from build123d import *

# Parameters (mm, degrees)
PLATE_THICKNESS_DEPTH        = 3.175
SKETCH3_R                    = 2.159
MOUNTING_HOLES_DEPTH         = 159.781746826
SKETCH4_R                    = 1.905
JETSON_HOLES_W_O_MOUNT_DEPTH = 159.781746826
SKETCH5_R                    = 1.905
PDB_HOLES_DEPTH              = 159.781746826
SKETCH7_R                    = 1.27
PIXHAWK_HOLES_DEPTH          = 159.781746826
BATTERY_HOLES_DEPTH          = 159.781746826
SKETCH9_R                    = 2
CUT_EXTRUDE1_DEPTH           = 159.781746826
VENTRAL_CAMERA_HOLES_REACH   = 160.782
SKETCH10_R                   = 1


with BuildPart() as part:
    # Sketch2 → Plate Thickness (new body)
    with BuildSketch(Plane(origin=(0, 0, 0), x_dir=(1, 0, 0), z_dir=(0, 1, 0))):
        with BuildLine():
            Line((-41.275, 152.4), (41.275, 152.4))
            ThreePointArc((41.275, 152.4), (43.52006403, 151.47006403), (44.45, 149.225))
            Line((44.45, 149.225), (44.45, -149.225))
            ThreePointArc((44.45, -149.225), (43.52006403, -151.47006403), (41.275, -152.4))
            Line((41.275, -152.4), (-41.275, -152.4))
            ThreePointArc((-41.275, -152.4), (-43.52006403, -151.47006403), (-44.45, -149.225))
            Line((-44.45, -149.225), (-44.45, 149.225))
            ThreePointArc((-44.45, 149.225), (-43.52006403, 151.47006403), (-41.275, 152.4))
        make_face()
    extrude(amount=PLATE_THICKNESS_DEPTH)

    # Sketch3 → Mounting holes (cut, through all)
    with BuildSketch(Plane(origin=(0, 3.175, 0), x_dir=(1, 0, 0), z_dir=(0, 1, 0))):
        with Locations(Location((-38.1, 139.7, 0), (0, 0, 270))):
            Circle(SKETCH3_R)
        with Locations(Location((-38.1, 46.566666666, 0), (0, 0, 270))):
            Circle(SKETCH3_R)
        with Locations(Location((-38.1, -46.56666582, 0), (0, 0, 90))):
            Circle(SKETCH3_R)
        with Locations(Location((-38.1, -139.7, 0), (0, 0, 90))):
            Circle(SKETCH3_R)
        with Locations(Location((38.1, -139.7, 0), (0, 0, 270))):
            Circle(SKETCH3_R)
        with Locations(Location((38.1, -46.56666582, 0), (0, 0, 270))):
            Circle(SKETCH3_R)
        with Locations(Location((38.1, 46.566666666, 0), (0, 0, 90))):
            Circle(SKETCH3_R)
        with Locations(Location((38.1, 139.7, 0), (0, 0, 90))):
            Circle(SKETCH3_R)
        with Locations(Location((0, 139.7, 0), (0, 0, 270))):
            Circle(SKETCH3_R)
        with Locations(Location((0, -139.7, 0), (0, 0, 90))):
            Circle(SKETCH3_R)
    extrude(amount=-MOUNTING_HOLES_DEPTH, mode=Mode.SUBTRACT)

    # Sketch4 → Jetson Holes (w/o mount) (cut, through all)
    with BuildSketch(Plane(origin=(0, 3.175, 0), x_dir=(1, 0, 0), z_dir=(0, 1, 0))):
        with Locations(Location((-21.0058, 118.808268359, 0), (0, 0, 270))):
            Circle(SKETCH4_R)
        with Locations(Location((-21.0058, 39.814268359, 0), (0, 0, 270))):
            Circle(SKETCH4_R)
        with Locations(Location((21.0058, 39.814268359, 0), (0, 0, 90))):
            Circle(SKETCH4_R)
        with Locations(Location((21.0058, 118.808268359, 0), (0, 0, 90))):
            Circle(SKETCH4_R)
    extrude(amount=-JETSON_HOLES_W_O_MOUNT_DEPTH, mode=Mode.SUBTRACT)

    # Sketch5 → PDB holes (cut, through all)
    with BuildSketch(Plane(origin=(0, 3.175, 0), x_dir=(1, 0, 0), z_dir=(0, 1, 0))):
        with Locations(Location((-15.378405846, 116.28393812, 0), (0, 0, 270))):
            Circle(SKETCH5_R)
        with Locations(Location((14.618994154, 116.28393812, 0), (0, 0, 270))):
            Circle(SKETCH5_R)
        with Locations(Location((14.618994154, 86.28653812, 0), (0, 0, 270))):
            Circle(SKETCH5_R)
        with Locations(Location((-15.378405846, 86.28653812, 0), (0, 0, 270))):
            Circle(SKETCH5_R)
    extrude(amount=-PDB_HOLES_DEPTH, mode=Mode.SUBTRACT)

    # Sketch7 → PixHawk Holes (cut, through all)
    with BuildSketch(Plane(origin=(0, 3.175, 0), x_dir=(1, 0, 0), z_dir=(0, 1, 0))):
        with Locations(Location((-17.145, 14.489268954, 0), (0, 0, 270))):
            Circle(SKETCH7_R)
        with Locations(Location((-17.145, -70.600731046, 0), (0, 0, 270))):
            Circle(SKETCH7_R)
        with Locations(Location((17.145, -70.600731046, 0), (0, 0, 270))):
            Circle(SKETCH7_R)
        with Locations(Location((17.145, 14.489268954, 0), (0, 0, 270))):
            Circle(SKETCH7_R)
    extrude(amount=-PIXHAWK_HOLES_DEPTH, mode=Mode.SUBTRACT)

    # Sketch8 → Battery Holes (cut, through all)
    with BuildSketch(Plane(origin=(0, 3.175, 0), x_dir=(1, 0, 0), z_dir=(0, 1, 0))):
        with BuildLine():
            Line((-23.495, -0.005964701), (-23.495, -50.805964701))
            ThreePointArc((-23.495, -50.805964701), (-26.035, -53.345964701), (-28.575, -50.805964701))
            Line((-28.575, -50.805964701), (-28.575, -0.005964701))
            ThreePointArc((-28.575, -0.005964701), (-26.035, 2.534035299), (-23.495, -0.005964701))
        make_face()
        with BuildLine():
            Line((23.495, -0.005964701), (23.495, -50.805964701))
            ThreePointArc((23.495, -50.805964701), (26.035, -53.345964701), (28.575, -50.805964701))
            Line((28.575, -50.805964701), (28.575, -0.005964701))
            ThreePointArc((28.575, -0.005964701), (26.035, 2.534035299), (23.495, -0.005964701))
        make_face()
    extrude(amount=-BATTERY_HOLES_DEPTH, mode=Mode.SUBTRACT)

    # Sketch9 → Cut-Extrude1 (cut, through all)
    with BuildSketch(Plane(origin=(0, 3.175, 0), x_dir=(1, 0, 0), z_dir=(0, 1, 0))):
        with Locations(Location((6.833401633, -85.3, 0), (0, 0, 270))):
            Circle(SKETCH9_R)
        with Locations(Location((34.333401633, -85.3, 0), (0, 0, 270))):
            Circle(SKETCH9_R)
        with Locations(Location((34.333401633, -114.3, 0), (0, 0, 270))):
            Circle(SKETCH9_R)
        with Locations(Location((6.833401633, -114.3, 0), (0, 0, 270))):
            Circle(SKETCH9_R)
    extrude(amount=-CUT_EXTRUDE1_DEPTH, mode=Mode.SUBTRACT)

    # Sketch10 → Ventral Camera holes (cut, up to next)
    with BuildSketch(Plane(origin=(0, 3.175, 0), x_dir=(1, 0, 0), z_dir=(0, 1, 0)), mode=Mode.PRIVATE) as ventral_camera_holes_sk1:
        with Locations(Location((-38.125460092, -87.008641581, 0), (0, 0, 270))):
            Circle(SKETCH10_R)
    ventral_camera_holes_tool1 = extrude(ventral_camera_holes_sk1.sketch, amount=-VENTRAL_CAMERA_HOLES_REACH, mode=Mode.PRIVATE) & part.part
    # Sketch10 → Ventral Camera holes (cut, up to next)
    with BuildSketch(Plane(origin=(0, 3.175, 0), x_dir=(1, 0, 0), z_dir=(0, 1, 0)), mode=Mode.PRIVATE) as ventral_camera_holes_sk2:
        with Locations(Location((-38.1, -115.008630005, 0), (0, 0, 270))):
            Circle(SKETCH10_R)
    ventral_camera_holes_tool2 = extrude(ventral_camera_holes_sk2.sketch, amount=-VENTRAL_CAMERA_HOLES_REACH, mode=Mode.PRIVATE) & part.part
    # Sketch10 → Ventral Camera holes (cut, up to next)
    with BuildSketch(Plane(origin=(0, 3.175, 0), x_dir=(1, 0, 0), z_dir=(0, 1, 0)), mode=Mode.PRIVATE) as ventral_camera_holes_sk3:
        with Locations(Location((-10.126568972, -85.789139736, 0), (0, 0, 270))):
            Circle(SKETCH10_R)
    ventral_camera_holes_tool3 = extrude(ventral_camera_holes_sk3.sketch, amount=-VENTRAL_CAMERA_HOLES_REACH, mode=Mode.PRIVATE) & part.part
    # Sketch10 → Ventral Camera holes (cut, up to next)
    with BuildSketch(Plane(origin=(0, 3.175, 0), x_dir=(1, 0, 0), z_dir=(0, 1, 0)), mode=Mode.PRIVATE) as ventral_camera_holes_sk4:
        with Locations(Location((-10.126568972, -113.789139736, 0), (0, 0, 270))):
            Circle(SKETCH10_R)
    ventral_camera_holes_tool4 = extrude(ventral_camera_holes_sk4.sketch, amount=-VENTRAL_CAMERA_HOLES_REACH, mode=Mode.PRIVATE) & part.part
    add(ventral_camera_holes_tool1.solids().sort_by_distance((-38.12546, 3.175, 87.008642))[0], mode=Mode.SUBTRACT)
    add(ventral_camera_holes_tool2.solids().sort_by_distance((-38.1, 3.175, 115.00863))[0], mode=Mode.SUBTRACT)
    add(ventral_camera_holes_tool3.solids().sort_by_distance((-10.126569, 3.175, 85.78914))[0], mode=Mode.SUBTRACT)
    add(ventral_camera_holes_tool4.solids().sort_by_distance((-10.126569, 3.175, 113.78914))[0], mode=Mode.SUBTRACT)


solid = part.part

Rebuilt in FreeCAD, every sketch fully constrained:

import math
import FreeCAD as App
import Part
import Sketcher

V = App.Vector
Q = App.Units.Quantity

doc = App.newDocument("Part")
body = doc.addObject("PartDesign::Body", "Body")

# Sketch on XZ plane
sketch1 = body.newObject("Sketcher::SketchObject", "Sketch")
sketch1.AttachmentSupport = (doc.getObject("XZ_Plane"), [""])
sketch1.MapMode = "FlatFace"
sketch1.addGeometry([
    Part.LineSegment(V(41.3, -152.4, 0), V(-41.3, -152.4, 0)),  # 0
    Part.ArcOfCircle(Part.Circle(V(-41.3, -149.2, 0), V(0, 0, 1), 3.2), math.radians(-180), math.radians(-90)),  # 1
    Part.LineSegment(V(-44.5, -149.2, 0), V(-44.5, 149.2, 0)),  # 2
    Part.ArcOfCircle(Part.Circle(V(-41.3, 149.2, 0), V(0, 0, 1), 3.2), math.radians(90), math.radians(180)),  # 3
    Part.LineSegment(V(-41.3, 152.4, 0), V(41.3, 152.4, 0)),  # 4
    Part.ArcOfCircle(Part.Circle(V(41.3, 149.2, 0), V(0, 0, 1), 3.2), math.radians(0), math.radians(90)),  # 5
    Part.LineSegment(V(44.5, 149.2, 0), V(44.5, -149.2, 0)),  # 6
    Part.ArcOfCircle(Part.Circle(V(41.3, -149.2, 0), V(0, 0, 1), 3.2), math.radians(-90), math.radians(0)),  # 7
], False)
sketch1.addConstraint([
    Sketcher.Constraint("Tangent", 0, 2, 1, 2),
    Sketcher.Constraint("Tangent", 1, 1, 2, 1),
    Sketcher.Constraint("Tangent", 2, 2, 3, 2),
    Sketcher.Constraint("Tangent", 3, 1, 4, 1),
    Sketcher.Constraint("Tangent", 4, 2, 5, 2),
    Sketcher.Constraint("Tangent", 5, 1, 6, 1),
    Sketcher.Constraint("Tangent", 6, 2, 7, 2),
    Sketcher.Constraint("Tangent", 7, 1, 0, 1),
    Sketcher.Constraint("Horizontal", 0),
    Sketcher.Constraint("Vertical", 2),
    Sketcher.Constraint("Horizontal", 4),
    Sketcher.Constraint("Vertical", 6),
    Sketcher.Constraint("Equal", 1, 3),
    Sketcher.Constraint("Equal", 3, 5),
    Sketcher.Constraint("Equal", 5, 7),
    Sketcher.Constraint("Symmetric", 1, 3, 5, 3, -1, 1),
    Sketcher.Constraint("DistanceY", 0, 2, -1, 1, Q("6 in")),
    Sketcher.Constraint("Radius", 1, Q("0.125 in")),
    Sketcher.Constraint("DistanceX", 0, 2, 0, 1, Q("3.25 in")),
])
pad1 = body.newObject("PartDesign::Pad", "Pad")
pad1.Profile = sketch1
pad1.Length = Q("0.125 in")
pad1.Reversed = True

# Sketch on XZ plane
sketch2 = body.newObject("Sketcher::SketchObject", "Sketch001")
sketch2.AttachmentSupport = (doc.getObject("XZ_Plane"), [""])
sketch2.MapMode = "FlatFace"
sketch2.AttachmentOffset = App.Placement(V(0, 0, -0.125 * 25.4), App.Rotation())
sketch2.addGeometry([
    Part.Circle(V(-38.1, -139.7, 0), V(0, 0, 1), 2.2),  # 0
    Part.Circle(V(-38.1, -46.6, 0), V(0, 0, 1), 2.2),  # 1
    Part.Circle(V(-38.1, 46.6, 0), V(0, 0, 1), 2.2),  # 2
    Part.Circle(V(-38.1, 139.7, 0), V(0, 0, 1), 2.2),  # 3
    Part.Circle(V(38.1, 139.7, 0), V(0, 0, 1), 2.2),  # 4
    Part.Circle(V(38.1, 46.6, 0), V(0, 0, 1), 2.2),  # 5
    Part.Circle(V(38.1, -46.6, 0), V(0, 0, 1), 2.2),  # 6
    Part.Circle(V(38.1, -139.7, 0), V(0, 0, 1), 2.2),  # 7
    Part.Circle(V(0, -139.7, 0), V(0, 0, 1), 2.2),  # 8
    Part.Circle(V(0, 139.7, 0), V(0, 0, 1), 2.2),  # 9
], False)
sketch2.addConstraint([
    Sketcher.Constraint("Equal", 0, 1),
    Sketcher.Constraint("Equal", 1, 2),
    Sketcher.Constraint("Equal", 2, 3),
    Sketcher.Constraint("Equal", 3, 4),
    Sketcher.Constraint("Equal", 4, 5),
    Sketcher.Constraint("Equal", 5, 6),
    Sketcher.Constraint("Equal", 6, 7),
    Sketcher.Constraint("Equal", 7, 8),
    Sketcher.Constraint("Equal", 8, 9),
    Sketcher.Constraint("Symmetric", 0, 3, 4, 3, -1, 1),
    Sketcher.Constraint("Symmetric", 1, 3, 5, 3, -1, 1),
    Sketcher.Constraint("Symmetric", 2, 3, 6, 3, -1, 1),
    Sketcher.Constraint("Symmetric", 3, 3, 7, 3, -1, 1),
    Sketcher.Constraint("Symmetric", 8, 3, 9, 3, -1, 1),
    Sketcher.Constraint("Symmetric", 3, 3, 4, 3, -2),
    Sketcher.Constraint("Symmetric", 2, 3, 5, 3, -2),
    Sketcher.Constraint("PointOnObject", 8, 3, -2),
    Sketcher.Constraint("Horizontal", 7, 3, 8, 3),
    Sketcher.Constraint("Vertical", 0, 3, 1, 3),
    Sketcher.Constraint("Diameter", 0, Q("0.17 in")),
    Sketcher.Constraint("DistanceY", 0, 3, 3, 3, Q("11 in")),
    Sketcher.Constraint("DistanceX", 3, 3, 4, 3, Q("3 in")),
    Sketcher.Constraint("DistanceY", 1, 3, -1, 1, 46.566667),
])
pocket1 = body.newObject("PartDesign::Pocket", "Pocket")
pocket1.Profile = sketch2
pocket1.Type = "ThroughAll"
pocket1.Reversed = True

# Sketch on XZ plane
sketch3 = body.newObject("Sketcher::SketchObject", "Sketch002")
sketch3.AttachmentSupport = (doc.getObject("XZ_Plane"), [""])
sketch3.MapMode = "FlatFace"
sketch3.AttachmentOffset = App.Placement(V(0, 0, -0.125 * 25.4), App.Rotation())
sketch3.addGeometry([
    Part.Circle(V(-21, -118.8, 0), V(0, 0, 1), 1.9),
    Part.Circle(V(-21, -39.8, 0), V(0, 0, 1), 1.9),
    Part.Circle(V(21, -39.8, 0), V(0, 0, 1), 1.9),
    Part.Circle(V(21, -118.8, 0), V(0, 0, 1), 1.9),
], False)
sketch3.addConstraint([
    Sketcher.Constraint("Equal", 0, 1),
    Sketcher.Constraint("Equal", 1, 2),
    Sketcher.Constraint("Equal", 2, 3),
    Sketcher.Constraint("Symmetric", 1, 3, 2, 3, -2),
    Sketcher.Constraint("Symmetric", 0, 3, 3, 3, -2),
    Sketcher.Constraint("Vertical", 0, 3, 1, 3),
    Sketcher.Constraint("Diameter", 0, Q("0.15 in")),
    Sketcher.Constraint("DistanceY", 0, 3, 1, 3, Q("3.11 in")),
    Sketcher.Constraint("DistanceX", 0, 3, -1, 1, Q("0.827 in")),
    Sketcher.Constraint("DistanceY", 0, 3, -1, 1, 118.808268),
])
pocket2 = body.newObject("PartDesign::Pocket", "Pocket001")
pocket2.Profile = sketch3
pocket2.Type = "ThroughAll"
pocket2.Reversed = True

# Sketch on XZ plane
sketch4 = body.newObject("Sketcher::SketchObject", "Sketch003")
sketch4.AttachmentSupport = (doc.getObject("XZ_Plane"), [""])
sketch4.MapMode = "FlatFace"
sketch4.AttachmentOffset = App.Placement(V(0, 0, -0.125 * 25.4), App.Rotation())
sketch4.addGeometry([
    Part.Circle(V(-15.4, -116.3, 0), V(0, 0, 1), 1.9),
    Part.Circle(V(14.6, -116.3, 0), V(0, 0, 1), 1.9),
    Part.Circle(V(14.6, -86.3, 0), V(0, 0, 1), 1.9),
    Part.Circle(V(-15.4, -86.3, 0), V(0, 0, 1), 1.9),
], False)
sketch4.addConstraint([
    Sketcher.Constraint("Equal", 0, 1),
    Sketcher.Constraint("Equal", 1, 2),
    Sketcher.Constraint("Equal", 2, 3),
    Sketcher.Constraint("Horizontal", 0, 3, 1, 3),
    Sketcher.Constraint("Horizontal", 2, 3, 3, 3),
    Sketcher.Constraint("Vertical", 1, 3, 2, 3),
    Sketcher.Constraint("Vertical", 0, 3, 3, 3),
    Sketcher.Constraint("Diameter", 0, Q("0.15 in")),
    Sketcher.Constraint("DistanceX", 0, 3, 1, 3, Q("1.181 in")),
    Sketcher.Constraint("DistanceY", 1, 3, 2, 3, Q("1.181 in")),
    Sketcher.Constraint("DistanceY", 0, 3, -1, 1, 116.283938),
    Sketcher.Constraint("DistanceX", 0, 3, -1, 1, 15.378406),
])
pocket3 = body.newObject("PartDesign::Pocket", "Pocket002")
pocket3.Profile = sketch4
pocket3.Type = "ThroughAll"
pocket3.Reversed = True

# Sketch on XZ plane
sketch5 = body.newObject("Sketcher::SketchObject", "Sketch004")
sketch5.AttachmentSupport = (doc.getObject("XZ_Plane"), [""])
sketch5.MapMode = "FlatFace"
sketch5.AttachmentOffset = App.Placement(V(0, 0, -0.125 * 25.4), App.Rotation())
sketch5.addGeometry([
    Part.Circle(V(-17.1, -14.5, 0), V(0, 0, 1), 1.3),
    Part.Circle(V(-17.1, 70.6, 0), V(0, 0, 1), 1.3),
    Part.Circle(V(17.1, 70.6, 0), V(0, 0, 1), 1.3),
    Part.Circle(V(17.1, -14.5, 0), V(0, 0, 1), 1.3),
], False)
sketch5.addConstraint([
    Sketcher.Constraint("Equal", 0, 1),
    Sketcher.Constraint("Equal", 1, 2),
    Sketcher.Constraint("Equal", 2, 3),
    Sketcher.Constraint("Symmetric", 1, 3, 2, 3, -2),
    Sketcher.Constraint("Symmetric", 0, 3, 3, 3, -2),
    Sketcher.Constraint("Vertical", 0, 3, 1, 3),
    Sketcher.Constraint("Diameter", 0, Q("0.1 in")),
    Sketcher.Constraint("DistanceY", 0, 3, 1, 3, Q("3.35 in")),
    Sketcher.Constraint("DistanceX", 1, 3, 2, 3, Q("1.35 in")),
    Sketcher.Constraint("DistanceY", 0, 3, -1, 1, 14.489269),
])
pocket4 = body.newObject("PartDesign::Pocket", "Pocket003")
pocket4.Profile = sketch5
pocket4.Type = "ThroughAll"
pocket4.Reversed = True

# Sketch on XZ plane
sketch6 = body.newObject("Sketcher::SketchObject", "Sketch005")
sketch6.AttachmentSupport = (doc.getObject("XZ_Plane"), [""])
sketch6.MapMode = "FlatFace"
sketch6.AttachmentOffset = App.Placement(V(0, 0, -0.125 * 25.4), App.Rotation())
sketch6.addGeometry([
    Part.LineSegment(V(-23.5, 50.8, 0), V(-23.5, 0, 0)),  # 0
    Part.ArcOfCircle(Part.Circle(V(-26, 0, 0), V(0, 0, 1), 2.5), math.radians(180), math.radians(360)),  # 1
    Part.LineSegment(V(-28.6, 0, 0), V(-28.6, 50.8, 0)),  # 2
    Part.ArcOfCircle(Part.Circle(V(-26, 50.8, 0), V(0, 0, 1), 2.5), math.radians(0), math.radians(180)),  # 3
    Part.LineSegment(V(23.5, 0, 0), V(23.5, 50.8, 0)),  # 4
    Part.ArcOfCircle(Part.Circle(V(26, 50.8, 0), V(0, 0, 1), 2.5), math.radians(0), math.radians(180)),  # 5
    Part.LineSegment(V(28.6, 50.8, 0), V(28.6, 0, 0)),  # 6
    Part.ArcOfCircle(Part.Circle(V(26, 0, 0), V(0, 0, 1), 2.5), math.radians(180), math.radians(360)),  # 7
], False)
sketch6.addConstraint([
    Sketcher.Constraint("Tangent", 0, 2, 1, 2),
    Sketcher.Constraint("Tangent", 1, 1, 2, 1),
    Sketcher.Constraint("Tangent", 2, 2, 3, 2),
    Sketcher.Constraint("Tangent", 3, 1, 0, 1),
    Sketcher.Constraint("Tangent", 4, 2, 5, 2),
    Sketcher.Constraint("Tangent", 5, 1, 6, 1),
    Sketcher.Constraint("Tangent", 6, 2, 7, 2),
    Sketcher.Constraint("Tangent", 7, 1, 4, 1),
    Sketcher.Constraint("Vertical", 0),
    Sketcher.Constraint("Vertical", 2),
    Sketcher.Constraint("Vertical", 4),
    Sketcher.Constraint("Vertical", 6),
    Sketcher.Constraint("Equal", 3, 5),
    Sketcher.Constraint("Symmetric", 3, 3, 5, 3, -2),
    Sketcher.Constraint("Horizontal", 1, 3, 7, 3),
    Sketcher.Constraint("Radius", 1, Q("0.1 in")),
    Sketcher.Constraint("DistanceY", 0, 2, 0, 1, Q("2 in")),
    Sketcher.Constraint("DistanceX", 3, 3, 5, 3, Q("2.05 in")),
    Sketcher.Constraint("DistanceY", -1, 1, 1, 3, 0.005965),
])
pocket5 = body.newObject("PartDesign::Pocket", "Pocket004")
pocket5.Profile = sketch6
pocket5.Type = "ThroughAll"
pocket5.Reversed = True

# Sketch on XZ plane
sketch7 = body.newObject("Sketcher::SketchObject", "Sketch006")
sketch7.AttachmentSupport = (doc.getObject("XZ_Plane"), [""])
sketch7.MapMode = "FlatFace"
sketch7.AttachmentOffset = App.Placement(V(0, 0, -0.125 * 25.4), App.Rotation())
sketch7.addGeometry([
    Part.Circle(V(6.8, 85.3, 0), V(0, 0, 1), 2),
    Part.Circle(V(34.3, 85.3, 0), V(0, 0, 1), 2),
    Part.Circle(V(34.3, 114.3, 0), V(0, 0, 1), 2),
    Part.Circle(V(6.8, 114.3, 0), V(0, 0, 1), 2),
], False)
sketch7.addConstraint([
    Sketcher.Constraint("Equal", 0, 1),
    Sketcher.Constraint("Equal", 1, 2),
    Sketcher.Constraint("Equal", 2, 3),
    Sketcher.Constraint("Horizontal", 0, 3, 1, 3),
    Sketcher.Constraint("Horizontal", 2, 3, 3, 3),
    Sketcher.Constraint("Vertical", 1, 3, 2, 3),
    Sketcher.Constraint("Vertical", 0, 3, 3, 3),
    Sketcher.Constraint("DistanceY", -1, 1, 2, 3, Q("4.5 in")),
    Sketcher.Constraint("Diameter", 0, 4.0),
    Sketcher.Constraint("DistanceX", -1, 1, 0, 3, 6.833402),
    Sketcher.Constraint("DistanceY", -1, 1, 0, 3, 85.3),
    Sketcher.Constraint("DistanceX", -1, 1, 1, 3, 34.333402),
])
pocket6 = body.newObject("PartDesign::Pocket", "Pocket005")
pocket6.Profile = sketch7
pocket6.Type = "ThroughAll"
pocket6.Reversed = True

# Sketch on XZ plane
sketch8 = body.newObject("Sketcher::SketchObject", "Sketch007")
sketch8.AttachmentSupport = (doc.getObject("XZ_Plane"), [""])
sketch8.MapMode = "FlatFace"
sketch8.AttachmentOffset = App.Placement(V(0, 0, -0.125 * 25.4), App.Rotation())
sketch8.addGeometry(Part.Circle(V(-38.1, 87, 0), V(0, 0, 1), 1), False)
sketch8.addConstraint([
    Sketcher.Constraint("Diameter", 0, 2.0),
    Sketcher.Constraint("DistanceX", 0, 3, -1, 1, 38.12546),
    Sketcher.Constraint("DistanceY", -1, 1, 0, 3, 87.008642),
])
pocket7 = body.newObject("PartDesign::Pocket", "Pocket006")
pocket7.Profile = sketch8
pocket7.Type = "UpToFirst"
pocket7.Reversed = True

# Sketch on XZ plane
sketch9 = body.newObject("Sketcher::SketchObject", "Sketch008")
sketch9.AttachmentSupport = (doc.getObject("XZ_Plane"), [""])
sketch9.MapMode = "FlatFace"
sketch9.AttachmentOffset = App.Placement(V(0, 0, -0.125 * 25.4), App.Rotation())
sketch9.addGeometry(Part.Circle(V(-38.1, 115, 0), V(0, 0, 1), 1), False)
sketch9.addConstraint([
    Sketcher.Constraint("DistanceX", 0, 3, -1, 1, Q("1.5 in")),
    Sketcher.Constraint("Diameter", 0, 2.0),
    Sketcher.Constraint("DistanceY", -1, 1, 0, 3, 115.00863),
])
pocket8 = body.newObject("PartDesign::Pocket", "Pocket007")
pocket8.Profile = sketch9
pocket8.Type = "UpToFirst"
pocket8.Reversed = True

# Sketch on XZ plane
sketch10 = body.newObject("Sketcher::SketchObject", "Sketch009")
sketch10.AttachmentSupport = (doc.getObject("XZ_Plane"), [""])
sketch10.MapMode = "FlatFace"
sketch10.AttachmentOffset = App.Placement(V(0, 0, -0.125 * 25.4), App.Rotation())
sketch10.addGeometry(Part.Circle(V(-10.1, 85.8, 0), V(0, 0, 1), 1), False)
sketch10.addConstraint([
    Sketcher.Constraint("Diameter", 0, 2.0),
    Sketcher.Constraint("DistanceX", 0, 3, -1, 1, 10.126569),
    Sketcher.Constraint("DistanceY", -1, 1, 0, 3, 85.78914),
])
pocket9 = body.newObject("PartDesign::Pocket", "Pocket008")
pocket9.Profile = sketch10
pocket9.Type = "UpToFirst"
pocket9.Reversed = True

# Sketch on XZ plane
sketch11 = body.newObject("Sketcher::SketchObject", "Sketch010")
sketch11.AttachmentSupport = (doc.getObject("XZ_Plane"), [""])
sketch11.MapMode = "FlatFace"
sketch11.AttachmentOffset = App.Placement(V(0, 0, -0.125 * 25.4), App.Rotation())
sketch11.addGeometry(Part.Circle(V(-10.1, 113.8, 0), V(0, 0, 1), 1), False)
sketch11.addConstraint([
    Sketcher.Constraint("Diameter", 0, 2.0),
    Sketcher.Constraint("DistanceX", 0, 3, -1, 1, 10.126569),
    Sketcher.Constraint("DistanceY", -1, 1, 0, 3, 113.78914),
])
pocket10 = body.newObject("PartDesign::Pocket", "Pocket009")
pocket10.Profile = sketch11
pocket10.Type = "UpToFirst"
pocket10.Reversed = True

doc.recompute()
